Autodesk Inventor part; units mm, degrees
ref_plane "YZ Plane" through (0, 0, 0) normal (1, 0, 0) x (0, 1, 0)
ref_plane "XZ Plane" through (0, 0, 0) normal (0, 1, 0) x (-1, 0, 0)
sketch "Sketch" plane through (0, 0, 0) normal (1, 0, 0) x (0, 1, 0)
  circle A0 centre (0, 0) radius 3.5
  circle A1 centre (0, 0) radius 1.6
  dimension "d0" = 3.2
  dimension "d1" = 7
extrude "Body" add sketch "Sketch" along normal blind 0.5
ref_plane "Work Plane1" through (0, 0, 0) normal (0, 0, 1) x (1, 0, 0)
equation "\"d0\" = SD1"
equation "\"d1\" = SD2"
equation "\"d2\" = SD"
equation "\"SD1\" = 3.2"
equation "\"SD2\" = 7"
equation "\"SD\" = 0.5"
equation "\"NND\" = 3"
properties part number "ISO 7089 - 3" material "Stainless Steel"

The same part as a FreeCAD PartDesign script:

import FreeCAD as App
import Part
import Sketcher
from FreeCAD import Vector

doc = App.newDocument("Part")
params = doc.addObject("Spreadsheet::Sheet", "Params")
for row, (alias, value) in enumerate([
    ("sketch1_diameter", "7 mm"),
    ("sketch1_diameter2", "3.2 mm"),
    ("pad1_length", "0.5 mm"),
], start=1):
    params.set(f"A{row}", alias)
    params.set(f"B{row}", "=" + value)
    params.setAlias(f"B{row}", alias)

body = doc.addObject("PartDesign::Body", "Body")

# Sketch on YZ plane
sketch1 = body.newObject("Sketcher::SketchObject", "Sketch")
sketch1.AttachmentSupport = (doc.getObject("YZ_Plane"), [""])
sketch1.MapMode = "FlatFace"
sketch1.addGeometry(Part.Circle(Vector(0, 0, 0), Vector(0, 0, 1), 3.5), False)
sketch1.addGeometry(Part.Circle(Vector(0, 0, 0), Vector(0, 0, 1), 1.6), False)
sketch1.addConstraint(Sketcher.Constraint("Coincident", 0, 3, -1, 1))
sketch1.addConstraint(Sketcher.Constraint("Coincident", 1, 3, -1, 1))
sketch1.addConstraint(Sketcher.Constraint("Diameter", 0, 7.0))
sketch1.addConstraint(Sketcher.Constraint("Diameter", 1, 3.2))
sketch1.setExpression("Constraints[2]", "Params.sketch1_diameter")
sketch1.setExpression("Constraints[3]", "Params.sketch1_diameter2")
pad1 = body.newObject("PartDesign::Pad", "Pad")
pad1.Profile = sketch1
pad1.setExpression("Length", "Params.pad1_length")

doc.recompute()
